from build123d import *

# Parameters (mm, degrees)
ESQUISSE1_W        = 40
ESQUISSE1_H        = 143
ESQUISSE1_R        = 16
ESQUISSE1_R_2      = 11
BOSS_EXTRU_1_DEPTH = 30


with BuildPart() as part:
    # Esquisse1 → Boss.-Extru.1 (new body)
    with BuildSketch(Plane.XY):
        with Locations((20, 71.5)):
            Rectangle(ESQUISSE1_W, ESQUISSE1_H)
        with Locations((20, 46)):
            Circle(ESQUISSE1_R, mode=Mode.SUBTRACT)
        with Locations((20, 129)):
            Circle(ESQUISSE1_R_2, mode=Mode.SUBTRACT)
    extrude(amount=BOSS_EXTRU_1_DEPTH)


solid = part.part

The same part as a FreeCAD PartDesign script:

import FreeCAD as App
import Part
import Sketcher
from FreeCAD import Vector
Q = App.Units.Quantity

doc = App.newDocument("Part")
body = doc.addObject("PartDesign::Body", "Body")

sketch1 = body.newObject("Sketcher::SketchObject", "Sketch")
sketch1.AttachmentSupport = (doc.getObject("XY_Plane"), [""])
sketch1.MapMode = "FlatFace"
sketch1.addGeometry([
    Part.LineSegment(Vector(0, 143, 0), Vector(0, 0, 0)),
    Part.LineSegment(Vector(0, 0, 0), Vector(40, 0, 0)),
    Part.LineSegment(Vector(40, 0, 0), Vector(40, 143, 0)),
    Part.LineSegment(Vector(40, 143, 0), Vector(0, 143, 0)),
    Part.Circle(Vector(20, 46, 0), Vector(0, 0, 1), 16),
    Part.Circle(Vector(20, 129, 0), Vector(0, 0, 1), 11),
], False)
sketch1.addConstraint([
    Sketcher.Constraint("Coincident", 0, 2, 1, 1),
    Sketcher.Constraint("Coincident", 1, 2, 2, 1),
    Sketcher.Constraint("Coincident", 2, 2, 3, 1),
    Sketcher.Constraint("Coincident", 3, 2, 0, 1),
    Sketcher.Constraint("Vertical", 0),
    Sketcher.Constraint("Horizontal", 1),
    Sketcher.Constraint("Vertical", 2),
    Sketcher.Constraint("Horizontal", 3),
    Sketcher.Constraint("Coincident", 0, 2, -1, 1),
    Sketcher.Constraint("Vertical", 4, 3, 5, 3),
    Sketcher.Constraint("Diameter", 4, Q("32 mm")),
    Sketcher.Constraint("Diameter", 5, Q("22 mm")),
    Sketcher.Constraint("DistanceX", 1, 1, 1, 2, Q("40 mm")),
    Sketcher.Constraint("DistanceY", 0, 2, 0, 1, Q("143 mm")),
    Sketcher.Constraint("DistanceX", -1, 1, 4, 3, Q("20 mm")),
    Sketcher.Constraint("DistanceY", -1, 1, 4, 3, Q("46 mm")),
    Sketcher.Constraint("DistanceY", -1, 1, 5, 3, Q("129 mm")),
])
pad1 = body.newObject("PartDesign::Pad", "Pad")
pad1.Profile = sketch1
pad1.Length = 30

doc.recompute()
